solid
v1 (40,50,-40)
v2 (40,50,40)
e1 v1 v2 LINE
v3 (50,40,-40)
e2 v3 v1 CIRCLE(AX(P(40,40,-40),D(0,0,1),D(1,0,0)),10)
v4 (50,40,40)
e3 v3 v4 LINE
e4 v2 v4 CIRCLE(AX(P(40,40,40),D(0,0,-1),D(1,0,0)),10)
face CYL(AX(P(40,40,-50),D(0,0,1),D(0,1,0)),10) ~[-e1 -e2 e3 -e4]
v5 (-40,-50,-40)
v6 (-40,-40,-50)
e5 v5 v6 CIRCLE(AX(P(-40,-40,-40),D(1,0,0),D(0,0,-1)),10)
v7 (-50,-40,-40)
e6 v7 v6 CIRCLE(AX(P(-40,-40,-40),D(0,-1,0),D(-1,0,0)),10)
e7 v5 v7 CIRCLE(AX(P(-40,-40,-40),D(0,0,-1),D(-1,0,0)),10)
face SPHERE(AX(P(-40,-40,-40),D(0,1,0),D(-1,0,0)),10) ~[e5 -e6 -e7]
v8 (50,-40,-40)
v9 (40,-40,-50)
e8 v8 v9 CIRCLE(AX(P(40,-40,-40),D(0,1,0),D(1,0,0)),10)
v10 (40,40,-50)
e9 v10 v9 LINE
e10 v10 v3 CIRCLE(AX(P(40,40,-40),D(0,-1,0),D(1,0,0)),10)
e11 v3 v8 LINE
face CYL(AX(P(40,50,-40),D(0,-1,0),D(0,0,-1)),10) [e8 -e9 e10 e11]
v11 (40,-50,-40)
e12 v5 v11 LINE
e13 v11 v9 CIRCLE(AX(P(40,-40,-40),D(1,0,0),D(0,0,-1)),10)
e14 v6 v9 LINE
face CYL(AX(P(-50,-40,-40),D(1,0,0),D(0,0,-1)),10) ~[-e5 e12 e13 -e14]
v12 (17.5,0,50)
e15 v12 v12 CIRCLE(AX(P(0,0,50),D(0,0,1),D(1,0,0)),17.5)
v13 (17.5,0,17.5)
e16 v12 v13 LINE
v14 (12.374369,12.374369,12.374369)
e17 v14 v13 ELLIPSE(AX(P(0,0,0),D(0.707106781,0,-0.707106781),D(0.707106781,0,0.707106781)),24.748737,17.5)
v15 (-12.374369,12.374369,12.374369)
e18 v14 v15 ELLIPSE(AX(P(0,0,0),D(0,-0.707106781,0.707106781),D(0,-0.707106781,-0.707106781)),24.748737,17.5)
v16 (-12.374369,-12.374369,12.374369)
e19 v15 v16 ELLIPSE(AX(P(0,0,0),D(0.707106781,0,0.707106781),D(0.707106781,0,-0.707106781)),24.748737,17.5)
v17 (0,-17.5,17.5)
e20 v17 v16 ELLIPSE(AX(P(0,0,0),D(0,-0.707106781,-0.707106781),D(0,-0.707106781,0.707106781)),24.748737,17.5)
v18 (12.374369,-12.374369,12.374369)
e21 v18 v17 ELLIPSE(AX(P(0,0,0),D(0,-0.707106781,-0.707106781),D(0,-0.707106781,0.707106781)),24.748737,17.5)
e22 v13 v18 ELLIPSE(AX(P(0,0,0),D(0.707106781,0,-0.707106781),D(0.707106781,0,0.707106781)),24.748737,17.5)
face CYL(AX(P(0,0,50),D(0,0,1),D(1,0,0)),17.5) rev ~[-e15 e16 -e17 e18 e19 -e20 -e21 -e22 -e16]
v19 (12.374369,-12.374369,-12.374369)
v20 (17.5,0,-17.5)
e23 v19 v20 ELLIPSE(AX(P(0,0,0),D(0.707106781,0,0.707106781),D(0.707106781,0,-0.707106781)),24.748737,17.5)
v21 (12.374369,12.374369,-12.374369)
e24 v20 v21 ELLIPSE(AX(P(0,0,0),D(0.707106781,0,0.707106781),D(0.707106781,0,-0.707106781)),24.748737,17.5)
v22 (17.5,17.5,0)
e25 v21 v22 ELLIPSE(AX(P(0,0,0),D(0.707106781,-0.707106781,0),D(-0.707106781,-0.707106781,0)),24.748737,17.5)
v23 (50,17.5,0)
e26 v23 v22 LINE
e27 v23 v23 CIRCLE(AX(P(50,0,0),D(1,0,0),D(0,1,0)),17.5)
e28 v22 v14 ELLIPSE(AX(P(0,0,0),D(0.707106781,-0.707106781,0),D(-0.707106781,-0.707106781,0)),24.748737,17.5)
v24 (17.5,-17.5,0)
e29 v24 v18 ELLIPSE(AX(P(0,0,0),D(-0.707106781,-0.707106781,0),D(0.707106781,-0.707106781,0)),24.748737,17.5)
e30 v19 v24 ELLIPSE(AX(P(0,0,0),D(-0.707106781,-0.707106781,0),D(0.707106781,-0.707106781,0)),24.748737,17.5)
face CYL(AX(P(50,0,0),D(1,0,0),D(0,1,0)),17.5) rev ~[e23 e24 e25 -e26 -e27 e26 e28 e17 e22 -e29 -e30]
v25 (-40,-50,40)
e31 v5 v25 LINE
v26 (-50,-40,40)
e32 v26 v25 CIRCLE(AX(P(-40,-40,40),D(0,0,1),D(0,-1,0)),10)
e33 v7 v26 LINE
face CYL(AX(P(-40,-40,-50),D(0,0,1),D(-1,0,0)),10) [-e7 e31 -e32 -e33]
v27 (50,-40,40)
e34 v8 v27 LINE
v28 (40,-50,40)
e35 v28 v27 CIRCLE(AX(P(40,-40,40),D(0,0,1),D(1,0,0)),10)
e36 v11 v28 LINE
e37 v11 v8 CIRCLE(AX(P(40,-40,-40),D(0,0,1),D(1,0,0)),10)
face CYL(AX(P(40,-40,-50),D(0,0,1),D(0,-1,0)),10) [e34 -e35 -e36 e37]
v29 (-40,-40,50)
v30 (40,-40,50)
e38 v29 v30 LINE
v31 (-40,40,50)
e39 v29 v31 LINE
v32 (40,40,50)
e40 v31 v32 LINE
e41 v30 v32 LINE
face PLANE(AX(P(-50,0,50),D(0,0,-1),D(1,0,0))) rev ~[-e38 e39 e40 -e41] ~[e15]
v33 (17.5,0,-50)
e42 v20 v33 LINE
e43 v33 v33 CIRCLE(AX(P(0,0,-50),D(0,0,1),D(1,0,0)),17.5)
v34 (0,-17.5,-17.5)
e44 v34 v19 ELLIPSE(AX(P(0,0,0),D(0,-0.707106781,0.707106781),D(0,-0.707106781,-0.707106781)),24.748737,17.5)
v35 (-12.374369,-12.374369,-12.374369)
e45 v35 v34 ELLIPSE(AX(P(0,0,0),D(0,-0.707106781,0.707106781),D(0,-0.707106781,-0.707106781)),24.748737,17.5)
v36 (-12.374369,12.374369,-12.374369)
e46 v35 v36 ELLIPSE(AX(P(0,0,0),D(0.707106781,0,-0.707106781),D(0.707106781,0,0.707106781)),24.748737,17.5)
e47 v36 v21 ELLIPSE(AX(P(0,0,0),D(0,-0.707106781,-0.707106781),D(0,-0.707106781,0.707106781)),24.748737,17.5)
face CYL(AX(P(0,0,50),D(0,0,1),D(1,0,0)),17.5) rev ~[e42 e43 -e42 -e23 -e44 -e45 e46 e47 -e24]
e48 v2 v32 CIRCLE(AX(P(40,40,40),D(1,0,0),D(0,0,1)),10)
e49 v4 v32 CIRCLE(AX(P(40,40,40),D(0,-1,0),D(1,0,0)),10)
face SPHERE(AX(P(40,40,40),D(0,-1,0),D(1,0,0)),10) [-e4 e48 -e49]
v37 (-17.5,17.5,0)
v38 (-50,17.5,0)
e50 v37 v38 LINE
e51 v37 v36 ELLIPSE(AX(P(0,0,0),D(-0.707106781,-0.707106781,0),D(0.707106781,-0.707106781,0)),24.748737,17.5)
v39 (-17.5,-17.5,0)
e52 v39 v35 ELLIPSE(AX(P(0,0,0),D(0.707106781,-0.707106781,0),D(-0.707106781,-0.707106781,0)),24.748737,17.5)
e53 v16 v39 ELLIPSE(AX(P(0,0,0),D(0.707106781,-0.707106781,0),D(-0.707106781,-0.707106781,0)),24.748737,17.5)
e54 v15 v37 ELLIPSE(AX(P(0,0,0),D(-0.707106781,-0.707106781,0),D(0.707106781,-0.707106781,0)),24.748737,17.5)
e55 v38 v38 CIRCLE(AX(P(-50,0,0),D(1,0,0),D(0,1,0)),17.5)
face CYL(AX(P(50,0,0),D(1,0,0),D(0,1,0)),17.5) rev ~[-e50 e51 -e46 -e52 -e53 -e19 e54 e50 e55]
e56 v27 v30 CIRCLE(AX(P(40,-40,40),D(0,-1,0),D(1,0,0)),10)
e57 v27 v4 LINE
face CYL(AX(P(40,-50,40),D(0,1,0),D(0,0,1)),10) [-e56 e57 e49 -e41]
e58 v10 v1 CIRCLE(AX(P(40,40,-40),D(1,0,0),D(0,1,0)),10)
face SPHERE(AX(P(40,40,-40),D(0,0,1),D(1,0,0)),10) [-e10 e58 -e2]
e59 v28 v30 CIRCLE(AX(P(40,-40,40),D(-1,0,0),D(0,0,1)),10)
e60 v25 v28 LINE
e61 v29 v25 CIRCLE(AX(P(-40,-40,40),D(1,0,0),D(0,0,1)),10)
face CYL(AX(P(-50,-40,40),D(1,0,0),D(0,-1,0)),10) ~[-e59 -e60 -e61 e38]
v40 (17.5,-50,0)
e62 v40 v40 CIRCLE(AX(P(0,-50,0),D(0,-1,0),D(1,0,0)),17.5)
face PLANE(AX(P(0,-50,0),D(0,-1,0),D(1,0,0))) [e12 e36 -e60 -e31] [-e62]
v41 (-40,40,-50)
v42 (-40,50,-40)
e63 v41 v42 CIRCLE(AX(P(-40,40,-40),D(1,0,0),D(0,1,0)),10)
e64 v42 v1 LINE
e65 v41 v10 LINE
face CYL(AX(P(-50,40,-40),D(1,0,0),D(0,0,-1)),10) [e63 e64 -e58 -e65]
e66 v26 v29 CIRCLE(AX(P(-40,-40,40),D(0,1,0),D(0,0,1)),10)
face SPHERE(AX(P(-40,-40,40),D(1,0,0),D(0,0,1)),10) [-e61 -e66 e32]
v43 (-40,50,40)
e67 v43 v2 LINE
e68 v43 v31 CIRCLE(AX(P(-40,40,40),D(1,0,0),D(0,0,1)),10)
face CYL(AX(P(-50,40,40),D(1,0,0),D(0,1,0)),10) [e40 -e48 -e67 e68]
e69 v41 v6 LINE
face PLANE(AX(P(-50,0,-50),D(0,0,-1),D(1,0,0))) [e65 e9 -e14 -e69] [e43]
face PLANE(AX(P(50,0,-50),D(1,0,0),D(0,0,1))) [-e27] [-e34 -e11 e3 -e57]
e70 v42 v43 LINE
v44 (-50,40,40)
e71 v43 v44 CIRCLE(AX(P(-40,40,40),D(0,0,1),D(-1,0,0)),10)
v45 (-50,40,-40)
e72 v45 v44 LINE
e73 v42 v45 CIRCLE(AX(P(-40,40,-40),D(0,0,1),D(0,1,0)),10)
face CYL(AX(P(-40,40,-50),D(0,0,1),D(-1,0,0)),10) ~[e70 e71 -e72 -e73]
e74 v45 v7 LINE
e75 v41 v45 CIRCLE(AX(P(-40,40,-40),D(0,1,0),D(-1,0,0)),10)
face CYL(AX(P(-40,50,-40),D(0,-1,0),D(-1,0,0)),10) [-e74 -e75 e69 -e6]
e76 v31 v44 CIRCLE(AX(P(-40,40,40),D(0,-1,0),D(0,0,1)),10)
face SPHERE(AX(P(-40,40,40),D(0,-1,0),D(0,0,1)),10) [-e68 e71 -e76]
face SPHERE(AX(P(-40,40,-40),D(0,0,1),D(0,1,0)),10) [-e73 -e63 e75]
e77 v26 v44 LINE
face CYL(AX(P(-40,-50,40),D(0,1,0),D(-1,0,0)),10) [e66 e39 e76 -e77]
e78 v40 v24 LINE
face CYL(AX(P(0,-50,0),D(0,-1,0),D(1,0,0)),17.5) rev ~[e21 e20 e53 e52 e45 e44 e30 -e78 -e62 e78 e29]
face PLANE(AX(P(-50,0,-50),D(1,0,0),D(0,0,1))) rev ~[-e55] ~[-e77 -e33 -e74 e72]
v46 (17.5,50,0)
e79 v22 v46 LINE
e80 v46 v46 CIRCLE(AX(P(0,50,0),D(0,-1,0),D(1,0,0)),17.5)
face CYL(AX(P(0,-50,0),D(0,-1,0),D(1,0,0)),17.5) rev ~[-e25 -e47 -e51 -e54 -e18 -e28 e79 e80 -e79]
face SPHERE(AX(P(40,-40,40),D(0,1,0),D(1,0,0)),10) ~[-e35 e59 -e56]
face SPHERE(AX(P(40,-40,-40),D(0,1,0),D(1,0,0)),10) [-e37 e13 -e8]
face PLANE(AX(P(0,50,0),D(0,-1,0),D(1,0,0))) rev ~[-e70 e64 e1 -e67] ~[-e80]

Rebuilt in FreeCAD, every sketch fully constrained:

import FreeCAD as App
import Part
import Sketcher

V = App.Vector


def edges_at(feature, points):
    """Names of the edges that pass closest to the given points."""
    edges = feature.Shape.Edges
    near = lambda p: min(range(len(edges)), key=lambda i: edges[i].distToShape(Part.Vertex(*p))[0])
    return sorted({f"Edge{near(p) + 1}" for p in points})

doc = App.newDocument("Part")
body = doc.addObject("PartDesign::Body", "Body")

# Sketch on XZ plane
sketch1 = body.newObject("Sketcher::SketchObject", "Sketch")
sketch1.AttachmentSupport = (doc.getObject("XZ_Plane"), [""])
sketch1.MapMode = "FlatFace"
sketch1.addGeometry([
    Part.LineSegment(V(-50, 50, 0), V(-50, -50, 0)),
    Part.LineSegment(V(-50, -50, 0), V(50, -50, 0)),
    Part.LineSegment(V(50, -50, 0), V(50, 50, 0)),
    Part.LineSegment(V(50, 50, 0), V(-50, 50, 0)),
], False)
sketch1.addConstraint([
    Sketcher.Constraint("Coincident", 0, 2, 1, 1),
    Sketcher.Constraint("Coincident", 1, 2, 2, 1),
    Sketcher.Constraint("Coincident", 2, 2, 3, 1),
    Sketcher.Constraint("Coincident", 3, 2, 0, 1),
    Sketcher.Constraint("Vertical", 0),
    Sketcher.Constraint("Horizontal", 1),
    Sketcher.Constraint("Vertical", 2),
    Sketcher.Constraint("Horizontal", 3),
    Sketcher.Constraint("Symmetric", 0, 2, 2, 2, -1, 1),
    Sketcher.Constraint("Equal", 3, 0),
    Sketcher.Constraint("DistanceX", 1, 1, 1, 2, 100.0),
])
pad1 = body.newObject("PartDesign::Pad", "Pad")
pad1.Profile = sketch1
pad1.Length = 100
pad1.Midplane = True

# Sketch on XZ plane
sketch2 = body.newObject("Sketcher::SketchObject", "Sketch001")
sketch2.AttachmentSupport = (doc.getObject("XZ_Plane"), [""])
sketch2.MapMode = "FlatFace"
sketch2.AttachmentOffset = App.Placement(V(0, 0, 50), App.Rotation())
sketch2.addGeometry(Part.Circle(V(0, 0, 0), V(0, 0, 1), 18), False)
sketch2.addConstraint([
    Sketcher.Constraint("Coincident", 0, 3, -1, 1),
    Sketcher.Constraint("Diameter", 0, 35.0),
])
pocket1 = body.newObject("PartDesign::Pocket", "Pocket")
pocket1.Profile = sketch2
pocket1.Type = "ThroughAll"

# Sketch on YZ plane
sketch3 = body.newObject("Sketcher::SketchObject", "Sketch002")
sketch3.AttachmentSupport = (doc.getObject("YZ_Plane"), [""])
sketch3.MapMode = "FlatFace"
sketch3.AttachmentOffset = App.Placement(V(0, 0, 50), App.Rotation())
sketch3.addGeometry(Part.Circle(V(0, 0, 0), V(0, 0, 1), 18), False)
sketch3.addConstraint([
    Sketcher.Constraint("Coincident", 0, 3, -1, 1),
    Sketcher.Constraint("Diameter", 0, 35.0),
])
pocket2 = body.newObject("PartDesign::Pocket", "Pocket001")
pocket2.Profile = sketch3
pocket2.Type = "ThroughAll"

# Sketch on XY plane
sketch4 = body.newObject("Sketcher::SketchObject", "Sketch003")
sketch4.AttachmentSupport = (doc.getObject("XY_Plane"), [""])
sketch4.MapMode = "FlatFace"
sketch4.AttachmentOffset = App.Placement(V(0, 0, 50), App.Rotation())
sketch4.addGeometry(Part.Circle(V(0, 0, 0), V(0, 0, 1), 18), False)
sketch4.addConstraint([
    Sketcher.Constraint("Coincident", 0, 3, -1, 1),
    Sketcher.Constraint("Diameter", 0, 35.0),
])
pocket3 = body.newObject("PartDesign::Pocket", "Pocket002")
pocket3.Profile = sketch4
pocket3.Type = "ThroughAll"
doc.recompute()

fillet = body.newObject("PartDesign::Fillet", "Fillet")
fillet.Base = (pocket3, edges_at(pocket3, [
    (50, 0, 50),
    (50, 50, 0),
    (50, 0, -50),
    (50, -50, 0),
    (0, -50, 50),
    (-50, 0, 50),
    (0, 50, 50),
    (-50, 50, 0),
    (0, 50, -50),
    (-50, 0, -50),
    (-50, -50, 0),
    (0, -50, -50),
]))
fillet.Radius = 10

doc.recompute()
